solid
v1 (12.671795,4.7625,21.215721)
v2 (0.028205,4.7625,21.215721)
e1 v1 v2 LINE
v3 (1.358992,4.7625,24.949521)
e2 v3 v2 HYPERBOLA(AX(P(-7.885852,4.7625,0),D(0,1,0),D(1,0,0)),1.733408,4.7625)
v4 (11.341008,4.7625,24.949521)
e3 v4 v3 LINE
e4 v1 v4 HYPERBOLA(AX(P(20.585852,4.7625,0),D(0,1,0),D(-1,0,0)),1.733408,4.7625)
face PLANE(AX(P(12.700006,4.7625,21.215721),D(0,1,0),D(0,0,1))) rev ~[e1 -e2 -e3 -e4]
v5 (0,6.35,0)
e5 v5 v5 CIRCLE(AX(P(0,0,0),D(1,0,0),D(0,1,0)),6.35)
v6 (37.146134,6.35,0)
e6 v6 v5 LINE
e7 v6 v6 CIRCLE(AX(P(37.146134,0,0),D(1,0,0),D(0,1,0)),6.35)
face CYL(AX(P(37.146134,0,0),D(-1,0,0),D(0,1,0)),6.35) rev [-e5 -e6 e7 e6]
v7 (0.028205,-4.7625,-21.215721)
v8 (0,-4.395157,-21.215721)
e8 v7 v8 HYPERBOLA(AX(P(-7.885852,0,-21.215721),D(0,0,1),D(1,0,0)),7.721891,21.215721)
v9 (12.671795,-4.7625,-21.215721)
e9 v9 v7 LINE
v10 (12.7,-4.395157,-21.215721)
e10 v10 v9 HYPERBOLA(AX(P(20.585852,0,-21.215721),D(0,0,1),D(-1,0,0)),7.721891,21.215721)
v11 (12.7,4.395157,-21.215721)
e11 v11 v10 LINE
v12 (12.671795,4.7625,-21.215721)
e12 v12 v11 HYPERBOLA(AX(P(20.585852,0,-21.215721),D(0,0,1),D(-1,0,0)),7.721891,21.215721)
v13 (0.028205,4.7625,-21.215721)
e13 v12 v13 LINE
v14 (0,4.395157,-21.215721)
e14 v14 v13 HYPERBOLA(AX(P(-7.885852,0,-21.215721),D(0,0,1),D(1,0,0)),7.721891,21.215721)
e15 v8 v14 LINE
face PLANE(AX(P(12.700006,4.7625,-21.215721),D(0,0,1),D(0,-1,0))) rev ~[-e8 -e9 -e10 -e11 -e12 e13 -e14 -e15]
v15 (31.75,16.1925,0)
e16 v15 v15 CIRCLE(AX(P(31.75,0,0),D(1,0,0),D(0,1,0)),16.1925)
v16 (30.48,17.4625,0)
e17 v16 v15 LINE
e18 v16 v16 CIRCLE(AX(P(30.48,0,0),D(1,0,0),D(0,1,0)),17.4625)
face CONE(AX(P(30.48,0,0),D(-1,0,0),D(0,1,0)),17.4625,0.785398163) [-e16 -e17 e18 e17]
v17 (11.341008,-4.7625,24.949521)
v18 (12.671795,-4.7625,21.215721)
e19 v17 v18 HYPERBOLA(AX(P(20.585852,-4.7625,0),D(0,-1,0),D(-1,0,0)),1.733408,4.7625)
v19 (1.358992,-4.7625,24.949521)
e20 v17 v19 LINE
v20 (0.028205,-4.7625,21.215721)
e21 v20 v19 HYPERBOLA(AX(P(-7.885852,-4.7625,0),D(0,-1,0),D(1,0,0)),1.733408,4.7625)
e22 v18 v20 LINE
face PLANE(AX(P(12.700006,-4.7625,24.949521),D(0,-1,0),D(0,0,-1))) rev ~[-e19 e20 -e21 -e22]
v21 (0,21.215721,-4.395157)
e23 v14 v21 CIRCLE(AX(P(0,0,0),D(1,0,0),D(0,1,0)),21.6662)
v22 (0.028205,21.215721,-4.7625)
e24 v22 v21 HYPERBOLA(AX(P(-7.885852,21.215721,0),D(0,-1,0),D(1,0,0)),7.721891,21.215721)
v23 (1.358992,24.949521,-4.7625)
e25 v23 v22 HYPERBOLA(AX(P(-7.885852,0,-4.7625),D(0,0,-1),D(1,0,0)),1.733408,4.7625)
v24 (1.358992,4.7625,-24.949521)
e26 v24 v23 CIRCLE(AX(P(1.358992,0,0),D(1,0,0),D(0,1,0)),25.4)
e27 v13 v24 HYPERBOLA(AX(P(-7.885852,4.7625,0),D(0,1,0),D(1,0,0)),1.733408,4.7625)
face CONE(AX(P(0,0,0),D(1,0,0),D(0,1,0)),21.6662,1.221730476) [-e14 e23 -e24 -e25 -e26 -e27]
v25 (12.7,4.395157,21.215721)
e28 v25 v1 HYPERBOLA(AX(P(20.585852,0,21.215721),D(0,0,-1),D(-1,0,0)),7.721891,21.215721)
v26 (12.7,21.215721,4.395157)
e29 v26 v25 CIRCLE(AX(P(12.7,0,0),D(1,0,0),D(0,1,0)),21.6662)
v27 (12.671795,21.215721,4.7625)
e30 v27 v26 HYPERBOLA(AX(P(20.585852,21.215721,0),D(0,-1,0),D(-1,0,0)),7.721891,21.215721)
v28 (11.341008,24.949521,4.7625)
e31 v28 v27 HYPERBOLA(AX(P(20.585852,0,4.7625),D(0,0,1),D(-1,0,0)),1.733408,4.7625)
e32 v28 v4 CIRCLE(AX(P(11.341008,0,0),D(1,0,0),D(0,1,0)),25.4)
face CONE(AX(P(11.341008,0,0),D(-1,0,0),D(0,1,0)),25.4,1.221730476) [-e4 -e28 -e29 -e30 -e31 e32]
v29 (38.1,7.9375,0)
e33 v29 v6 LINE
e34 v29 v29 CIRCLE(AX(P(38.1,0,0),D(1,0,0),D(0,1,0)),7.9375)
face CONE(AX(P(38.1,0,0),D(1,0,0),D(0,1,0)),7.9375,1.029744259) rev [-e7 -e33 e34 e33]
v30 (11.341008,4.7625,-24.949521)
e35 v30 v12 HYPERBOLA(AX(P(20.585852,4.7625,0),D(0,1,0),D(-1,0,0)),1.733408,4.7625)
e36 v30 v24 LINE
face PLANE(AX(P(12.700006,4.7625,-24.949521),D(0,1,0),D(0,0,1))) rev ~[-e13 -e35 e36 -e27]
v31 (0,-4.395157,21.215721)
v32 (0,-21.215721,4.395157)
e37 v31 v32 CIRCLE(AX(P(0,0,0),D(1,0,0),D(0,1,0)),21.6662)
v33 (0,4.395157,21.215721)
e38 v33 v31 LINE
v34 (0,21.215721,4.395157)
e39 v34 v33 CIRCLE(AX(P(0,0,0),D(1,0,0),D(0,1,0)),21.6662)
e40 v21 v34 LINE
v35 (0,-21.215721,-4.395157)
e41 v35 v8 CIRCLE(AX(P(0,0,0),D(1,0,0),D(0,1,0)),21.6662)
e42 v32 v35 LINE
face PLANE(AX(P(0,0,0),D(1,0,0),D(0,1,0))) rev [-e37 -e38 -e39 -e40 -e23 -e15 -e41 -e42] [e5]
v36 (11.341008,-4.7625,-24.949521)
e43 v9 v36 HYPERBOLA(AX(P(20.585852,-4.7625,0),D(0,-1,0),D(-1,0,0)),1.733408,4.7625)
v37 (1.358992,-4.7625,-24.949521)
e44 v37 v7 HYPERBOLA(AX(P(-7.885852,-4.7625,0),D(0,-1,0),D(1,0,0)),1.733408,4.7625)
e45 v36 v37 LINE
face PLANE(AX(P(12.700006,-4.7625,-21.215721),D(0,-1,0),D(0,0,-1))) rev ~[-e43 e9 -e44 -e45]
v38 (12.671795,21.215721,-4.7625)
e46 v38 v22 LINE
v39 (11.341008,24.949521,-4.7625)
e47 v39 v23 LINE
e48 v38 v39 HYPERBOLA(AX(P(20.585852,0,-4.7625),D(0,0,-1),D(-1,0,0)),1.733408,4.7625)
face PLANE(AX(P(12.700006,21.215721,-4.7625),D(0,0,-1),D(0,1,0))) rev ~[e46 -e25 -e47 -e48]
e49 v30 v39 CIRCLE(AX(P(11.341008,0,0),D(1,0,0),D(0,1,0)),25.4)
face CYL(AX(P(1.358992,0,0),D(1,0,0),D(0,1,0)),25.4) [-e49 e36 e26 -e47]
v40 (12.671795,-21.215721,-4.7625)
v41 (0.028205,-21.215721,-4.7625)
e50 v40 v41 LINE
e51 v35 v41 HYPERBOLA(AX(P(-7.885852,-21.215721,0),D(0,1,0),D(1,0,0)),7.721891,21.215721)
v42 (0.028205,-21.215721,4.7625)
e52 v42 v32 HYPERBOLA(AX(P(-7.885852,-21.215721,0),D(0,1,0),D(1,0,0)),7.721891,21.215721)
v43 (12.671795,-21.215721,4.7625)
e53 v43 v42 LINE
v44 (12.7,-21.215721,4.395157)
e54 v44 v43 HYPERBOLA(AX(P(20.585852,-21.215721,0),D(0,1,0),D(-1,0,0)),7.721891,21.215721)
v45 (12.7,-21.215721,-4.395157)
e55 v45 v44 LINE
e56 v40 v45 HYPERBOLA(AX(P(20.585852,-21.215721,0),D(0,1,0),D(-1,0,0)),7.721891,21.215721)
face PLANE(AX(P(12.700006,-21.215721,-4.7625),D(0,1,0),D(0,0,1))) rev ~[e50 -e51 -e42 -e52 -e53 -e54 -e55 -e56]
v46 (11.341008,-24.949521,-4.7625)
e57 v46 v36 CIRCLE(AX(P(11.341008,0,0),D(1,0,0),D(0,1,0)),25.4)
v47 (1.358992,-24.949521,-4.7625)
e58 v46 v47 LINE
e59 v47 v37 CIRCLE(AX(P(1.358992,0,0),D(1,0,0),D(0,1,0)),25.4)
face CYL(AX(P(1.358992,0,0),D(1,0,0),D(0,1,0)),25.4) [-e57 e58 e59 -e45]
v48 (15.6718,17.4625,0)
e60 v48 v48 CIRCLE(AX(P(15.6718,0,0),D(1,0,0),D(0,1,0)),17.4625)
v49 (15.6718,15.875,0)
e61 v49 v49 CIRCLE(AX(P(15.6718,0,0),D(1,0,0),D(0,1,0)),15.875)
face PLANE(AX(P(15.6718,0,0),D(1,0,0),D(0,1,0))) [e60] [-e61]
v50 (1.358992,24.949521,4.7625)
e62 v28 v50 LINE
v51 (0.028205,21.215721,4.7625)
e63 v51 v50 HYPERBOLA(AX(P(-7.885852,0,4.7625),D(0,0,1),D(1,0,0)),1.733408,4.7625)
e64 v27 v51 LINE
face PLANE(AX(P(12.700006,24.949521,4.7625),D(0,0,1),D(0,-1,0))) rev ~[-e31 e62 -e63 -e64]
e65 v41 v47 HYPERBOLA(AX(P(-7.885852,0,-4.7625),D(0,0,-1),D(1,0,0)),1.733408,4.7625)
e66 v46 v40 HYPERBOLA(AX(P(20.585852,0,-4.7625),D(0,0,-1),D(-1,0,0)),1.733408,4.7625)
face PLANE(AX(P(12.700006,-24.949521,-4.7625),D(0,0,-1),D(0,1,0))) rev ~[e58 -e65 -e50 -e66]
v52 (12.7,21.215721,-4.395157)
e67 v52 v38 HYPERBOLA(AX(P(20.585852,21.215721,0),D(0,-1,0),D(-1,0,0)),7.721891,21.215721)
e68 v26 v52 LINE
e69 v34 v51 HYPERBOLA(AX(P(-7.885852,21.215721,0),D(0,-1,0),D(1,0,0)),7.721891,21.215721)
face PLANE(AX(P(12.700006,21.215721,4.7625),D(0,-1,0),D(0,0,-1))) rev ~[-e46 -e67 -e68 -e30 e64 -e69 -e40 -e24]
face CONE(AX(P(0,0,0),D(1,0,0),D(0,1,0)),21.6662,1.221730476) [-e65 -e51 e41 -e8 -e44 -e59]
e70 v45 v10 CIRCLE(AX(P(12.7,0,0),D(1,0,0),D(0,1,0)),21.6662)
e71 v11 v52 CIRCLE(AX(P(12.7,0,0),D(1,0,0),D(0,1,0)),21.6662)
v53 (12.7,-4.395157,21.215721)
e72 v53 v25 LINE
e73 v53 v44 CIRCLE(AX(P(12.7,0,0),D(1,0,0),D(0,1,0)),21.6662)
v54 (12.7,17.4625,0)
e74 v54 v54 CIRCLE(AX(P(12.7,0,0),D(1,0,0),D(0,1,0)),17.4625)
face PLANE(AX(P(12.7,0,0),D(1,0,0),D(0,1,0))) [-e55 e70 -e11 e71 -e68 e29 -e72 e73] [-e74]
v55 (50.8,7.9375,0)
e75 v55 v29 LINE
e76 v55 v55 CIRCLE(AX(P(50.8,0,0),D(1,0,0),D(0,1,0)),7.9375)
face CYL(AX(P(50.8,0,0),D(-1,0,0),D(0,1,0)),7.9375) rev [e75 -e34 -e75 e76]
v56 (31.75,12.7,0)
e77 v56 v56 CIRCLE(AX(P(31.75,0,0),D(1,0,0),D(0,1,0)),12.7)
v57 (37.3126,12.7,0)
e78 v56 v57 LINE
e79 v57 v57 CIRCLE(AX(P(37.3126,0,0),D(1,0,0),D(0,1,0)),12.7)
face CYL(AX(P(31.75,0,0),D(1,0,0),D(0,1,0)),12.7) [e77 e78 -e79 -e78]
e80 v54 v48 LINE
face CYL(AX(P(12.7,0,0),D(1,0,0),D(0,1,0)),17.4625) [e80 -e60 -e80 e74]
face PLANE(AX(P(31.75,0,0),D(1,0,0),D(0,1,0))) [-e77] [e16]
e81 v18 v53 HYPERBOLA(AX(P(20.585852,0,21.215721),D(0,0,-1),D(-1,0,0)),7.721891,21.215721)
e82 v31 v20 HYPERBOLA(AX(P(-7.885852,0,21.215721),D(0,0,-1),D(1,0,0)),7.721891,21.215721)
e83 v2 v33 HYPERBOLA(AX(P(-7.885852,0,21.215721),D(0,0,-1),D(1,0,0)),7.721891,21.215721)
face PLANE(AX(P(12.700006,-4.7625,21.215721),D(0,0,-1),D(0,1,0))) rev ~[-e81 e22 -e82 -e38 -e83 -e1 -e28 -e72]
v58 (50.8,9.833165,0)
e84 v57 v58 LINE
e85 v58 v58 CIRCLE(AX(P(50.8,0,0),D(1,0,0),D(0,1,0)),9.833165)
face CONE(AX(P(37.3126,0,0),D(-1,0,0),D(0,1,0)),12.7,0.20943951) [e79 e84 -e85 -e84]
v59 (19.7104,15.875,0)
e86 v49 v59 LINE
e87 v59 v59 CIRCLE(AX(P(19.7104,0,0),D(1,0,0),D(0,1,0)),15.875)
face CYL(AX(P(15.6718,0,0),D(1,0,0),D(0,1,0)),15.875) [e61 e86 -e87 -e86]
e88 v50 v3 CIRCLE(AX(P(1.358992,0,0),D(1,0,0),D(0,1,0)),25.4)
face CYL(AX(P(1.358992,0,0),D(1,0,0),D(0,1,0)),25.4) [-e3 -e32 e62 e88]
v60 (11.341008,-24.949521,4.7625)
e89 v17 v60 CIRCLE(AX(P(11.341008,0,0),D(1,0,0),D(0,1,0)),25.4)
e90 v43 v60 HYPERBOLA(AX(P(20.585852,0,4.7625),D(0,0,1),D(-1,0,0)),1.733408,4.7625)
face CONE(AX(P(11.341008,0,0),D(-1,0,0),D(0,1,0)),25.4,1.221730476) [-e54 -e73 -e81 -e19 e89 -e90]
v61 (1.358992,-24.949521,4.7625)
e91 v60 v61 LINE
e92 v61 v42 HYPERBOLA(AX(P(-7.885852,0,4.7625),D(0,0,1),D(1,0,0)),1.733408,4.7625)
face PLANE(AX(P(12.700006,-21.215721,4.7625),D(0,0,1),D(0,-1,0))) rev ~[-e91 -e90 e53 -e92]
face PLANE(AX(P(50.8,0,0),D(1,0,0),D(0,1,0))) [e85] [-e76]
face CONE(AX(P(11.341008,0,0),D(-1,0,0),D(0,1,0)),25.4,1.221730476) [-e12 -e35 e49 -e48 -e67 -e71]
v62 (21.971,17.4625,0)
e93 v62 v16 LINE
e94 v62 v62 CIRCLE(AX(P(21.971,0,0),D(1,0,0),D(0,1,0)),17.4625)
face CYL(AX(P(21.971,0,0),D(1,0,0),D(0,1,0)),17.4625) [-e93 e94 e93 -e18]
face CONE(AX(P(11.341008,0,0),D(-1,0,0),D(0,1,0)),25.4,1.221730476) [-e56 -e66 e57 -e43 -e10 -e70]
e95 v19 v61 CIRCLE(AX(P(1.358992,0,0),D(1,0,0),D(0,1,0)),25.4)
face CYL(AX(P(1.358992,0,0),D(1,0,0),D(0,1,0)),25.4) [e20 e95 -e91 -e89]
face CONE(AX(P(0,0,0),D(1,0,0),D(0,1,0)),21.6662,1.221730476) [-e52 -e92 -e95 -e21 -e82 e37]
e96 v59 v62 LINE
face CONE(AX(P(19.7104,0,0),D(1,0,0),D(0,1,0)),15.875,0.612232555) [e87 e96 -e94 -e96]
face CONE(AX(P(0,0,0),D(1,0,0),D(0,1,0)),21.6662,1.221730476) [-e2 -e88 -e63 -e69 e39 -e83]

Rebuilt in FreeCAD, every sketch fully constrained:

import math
import FreeCAD as App
import Part
import Sketcher
Q = App.Units.Quantity

doc = App.newDocument("Part")
params = doc.addObject("Spreadsheet::Sheet", "Params")
for row, (alias, value) in enumerate([
    ("sketch1_width", "0.5 in"),
    ("sketch1_width2", "0.219 in"),
    ("sketch1_width3", "0.335 in"),
    ("sketch1_width4", "0.159 in"),
    ("sketch1_width5", "0.117 in"),
    ("revolution_angle", "360 deg"),
    ("sketch2_radius", "1 in"),
    ("sketch2_width", "0.147 in"),
    ("sketch2_height", "0.375 in"),
    ("pocket1_length", "12.700012 mm"),
], start=1):
    params.set(f"A{row}", alias)
    params.set(f"B{row}", "=" + value)
    params.setAlias(f"B{row}", alias)

body = doc.addObject("PartDesign::Body", "Body")

# Sketch on XY plane
sketch1 = body.newObject("Sketcher::SketchObject", "Sketch")
sketch1.AttachmentSupport = (doc.getObject("XY_Plane"), [""])
sketch1.MapMode = "FlatFace"
sketch1.addGeometry([
    Part.LineSegment(App.Vector(0, 21.7, 0), App.Vector(0, 6.3, 0)),  # 0
    Part.LineSegment(App.Vector(0, 6.3, 0), App.Vector(37.1, 6.3, 0)),  # 1
    Part.LineSegment(App.Vector(37.1, 6.3, 0), App.Vector(38.1, 7.9, 0)),  # 2
    Part.LineSegment(App.Vector(38.1, 7.9, 0), App.Vector(50.8, 7.9, 0)),  # 3
    Part.LineSegment(App.Vector(50.8, 7.9, 0), App.Vector(50.8, 9.8, 0)),  # 4
    Part.LineSegment(App.Vector(50.8, 9.8, 0), App.Vector(37.3, 12.7, 0)),  # 5
    Part.LineSegment(App.Vector(37.3, 12.7, 0), App.Vector(31.8, 12.7, 0)),  # 6
    Part.LineSegment(App.Vector(31.8, 12.7, 0), App.Vector(31.8, 16.2, 0)),  # 7
    Part.LineSegment(App.Vector(31.8, 16.2, 0), App.Vector(30.5, 17.5, 0)),  # 8
    Part.LineSegment(App.Vector(30.5, 17.5, 0), App.Vector(22, 17.5, 0)),  # 9
    Part.LineSegment(App.Vector(22, 17.5, 0), App.Vector(19.7, 15.9, 0)),  # 10
    Part.LineSegment(App.Vector(19.7, 15.9, 0), App.Vector(15.7, 15.9, 0)),  # 11
    Part.LineSegment(App.Vector(15.7, 15.9, 0), App.Vector(15.7, 17.5, 0)),  # 12
    Part.LineSegment(App.Vector(15.7, 17.5, 0), App.Vector(12.7, 17.5, 0)),  # 13
    Part.LineSegment(App.Vector(12.7, 17.5, 0), App.Vector(12.7, 21.7, 0)),  # 14
    Part.LineSegment(App.Vector(12.7, 21.7, 0), App.Vector(11.3, 25.4, 0)),  # 15
    Part.LineSegment(App.Vector(11.3, 25.4, 0), App.Vector(1.4, 25.4, 0)),  # 16
    Part.LineSegment(App.Vector(1.4, 25.4, 0), App.Vector(0, 21.7, 0)),  # 17
], False)
sketch1.addConstraint([
    Sketcher.Constraint("Coincident", 0, 2, 1, 1),
    Sketcher.Constraint("Coincident", 1, 2, 2, 1),
    Sketcher.Constraint("Coincident", 2, 2, 3, 1),
    Sketcher.Constraint("Coincident", 3, 2, 4, 1),
    Sketcher.Constraint("Coincident", 4, 2, 5, 1),
    Sketcher.Constraint("Coincident", 5, 2, 6, 1),
    Sketcher.Constraint("Coincident", 6, 2, 7, 1),
    Sketcher.Constraint("Coincident", 7, 2, 8, 1),
    Sketcher.Constraint("Coincident", 8, 2, 9, 1),
    Sketcher.Constraint("Coincident", 9, 2, 10, 1),
    Sketcher.Constraint("Coincident", 10, 2, 11, 1),
    Sketcher.Constraint("Coincident", 11, 2, 12, 1),
    Sketcher.Constraint("Coincident", 12, 2, 13, 1),
    Sketcher.Constraint("Coincident", 13, 2, 14, 1),
    Sketcher.Constraint("Coincident", 14, 2, 15, 1),
    Sketcher.Constraint("Coincident", 15, 2, 16, 1),
    Sketcher.Constraint("Coincident", 16, 2, 17, 1),
    Sketcher.Constraint("Coincident", 17, 2, 0, 1),
    Sketcher.Constraint("Vertical", 0),
    Sketcher.Constraint("Horizontal", 1),
    Sketcher.Constraint("Horizontal", 3),
    Sketcher.Constraint("Vertical", 4),
    Sketcher.Constraint("Horizontal", 6),
    Sketcher.Constraint("Vertical", 7),
    Sketcher.Constraint("Horizontal", 9),
    Sketcher.Constraint("Horizontal", 11),
    Sketcher.Constraint("Vertical", 12),
    Sketcher.Constraint("Horizontal", 13),
    Sketcher.Constraint("Vertical", 14),
    Sketcher.Constraint("Horizontal", 16),
    Sketcher.Constraint("PointOnObject", 0, 2, -2),
    Sketcher.Constraint("Horizontal", 9, 2, 12, 2),
    Sketcher.Constraint("Horizontal", 14, 2, 17, 2),
    Sketcher.Constraint("Equal", 15, 17),
    Sketcher.Constraint("DistanceX", 3, 1, 3, 2, Q("0.5 in")),
    Sketcher.Constraint("DistanceX", -1, 1, 3, 2, Q("2 in")),
    Sketcher.Constraint("DistanceY", -1, 1, 15, 2, Q("1 in")),
    Sketcher.Constraint("Angle", 2, Q("59 deg")),
    Sketcher.Constraint("Angle", 5, Q("168 deg")),
    Sketcher.Constraint("Angle", 8, Q("135 deg")),
    Sketcher.Constraint("Angle", 15, Q("110 deg")),
    Sketcher.Constraint("DistanceY", -1, 1, 5, 2, Q("0.5 in")),
    Sketcher.Constraint("DistanceX", -1, 1, 8, 2, Q("1.2 in")),
    Sketcher.Constraint("DistanceX", -1, 1, 13, 2, Q("0.5 in")),
    Sketcher.Constraint("DistanceX", 6, 2, 6, 1, Q("0.219 in")),
    Sketcher.Constraint("DistanceX", 9, 2, 9, 1, Q("0.335 in")),
    Sketcher.Constraint("DistanceX", 11, 2, 11, 1, Q("0.159 in")),
    Sketcher.Constraint("DistanceX", 13, 2, 13, 1, Q("0.117 in")),
    Sketcher.Constraint("DistanceY", 0, 2, 0, 1, Q("0.603 in")),
    Sketcher.Constraint("DistanceY", 12, 1, 12, 2, Q("0.0625 in")),
    Sketcher.Constraint("DistanceY", -1, 1, 0, 2, Q("0.25 in")),
    Sketcher.Constraint("DistanceX", -1, 1, 6, 2, Q("1.25 in")),
    Sketcher.Constraint("DistanceY", 7, 1, 7, 2, Q("0.1375 in")),
    Sketcher.Constraint("DistanceY", -1, 1, 2, 2, Q("0.3125 in")),
])
sketch1.setExpression("Constraints[34]", "Params.sketch1_width")
sketch1.setExpression("Constraints[44]", "Params.sketch1_width2")
sketch1.setExpression("Constraints[45]", "Params.sketch1_width3")
sketch1.setExpression("Constraints[46]", "Params.sketch1_width4")
sketch1.setExpression("Constraints[47]", "Params.sketch1_width5")
revolution = body.newObject("PartDesign::Revolution", "Revolution")
revolution.Profile = sketch1
revolution.ReferenceAxis = (sketch1, ["H_Axis"])
revolution.setExpression("Angle", "Params.revolution_angle")

# Sketch on YZ plane
sketch2 = body.newObject("Sketcher::SketchObject", "Sketch001")
sketch2.AttachmentSupport = (doc.getObject("YZ_Plane"), [""])
sketch2.MapMode = "FlatFace"
sketch2.AttachmentOffset = App.Placement(App.Vector(0, 0, 12.700006), App.Rotation())
sketch2.addGeometry([
    Part.LineSegment(App.Vector(24.9, -4.8, 0), App.Vector(21.2, -4.8, 0)),
    Part.LineSegment(App.Vector(21.2, -4.8, 0), App.Vector(21.2, 4.8, 0)),
    Part.LineSegment(App.Vector(21.2, 4.8, 0), App.Vector(24.9, 4.8, 0)),
    Part.ArcOfCircle(Part.Circle(App.Vector(0, 0, 0), App.Vector(0, 0, 1), 25.4), math.radians(-11), math.radians(11)),
], False)
sketch2.addConstraint([
    Sketcher.Constraint("Coincident", 0, 2, 1, 1),
    Sketcher.Constraint("Coincident", 1, 2, 2, 1),
    Sketcher.Constraint("Coincident", 2, 2, 3, 2),
    Sketcher.Constraint("Coincident", 3, 1, 0, 1),
    Sketcher.Constraint("Horizontal", 0),
    Sketcher.Constraint("Vertical", 1),
    Sketcher.Constraint("Horizontal", 2),
    Sketcher.Constraint("Coincident", 3, 3, -1, 1),
    Sketcher.Constraint("Vertical", 2, 2, 3, 1),
    Sketcher.Constraint("Radius", 3, Q("1 in")),
    Sketcher.Constraint("DistanceX", 0, 2, 0, 1, Q("0.147 in")),
    Sketcher.Constraint("DistanceY", 1, 1, 1, 2, Q("0.375 in")),
])
sketch2.setExpression("Constraints[9]", "Params.sketch2_radius")
sketch2.setExpression("Constraints[10]", "Params.sketch2_width")
sketch2.setExpression("Constraints[11]", "Params.sketch2_height")
pocket1 = body.newObject("PartDesign::Pocket", "Pocket")
pocket1.Profile = sketch2
pocket1.setExpression("Length", "Params.pocket1_length")
doc.recompute()

polarpattern = body.newObject("PartDesign::PolarPattern", "PolarPattern")
polarpattern.Originals = [pocket1]
polarpattern.Axis = (doc.getObject("X_Axis"), [""])
polarpattern.Angle = 360
polarpattern.Occurrences = 4
body.Tip = polarpattern

doc.recompute()
